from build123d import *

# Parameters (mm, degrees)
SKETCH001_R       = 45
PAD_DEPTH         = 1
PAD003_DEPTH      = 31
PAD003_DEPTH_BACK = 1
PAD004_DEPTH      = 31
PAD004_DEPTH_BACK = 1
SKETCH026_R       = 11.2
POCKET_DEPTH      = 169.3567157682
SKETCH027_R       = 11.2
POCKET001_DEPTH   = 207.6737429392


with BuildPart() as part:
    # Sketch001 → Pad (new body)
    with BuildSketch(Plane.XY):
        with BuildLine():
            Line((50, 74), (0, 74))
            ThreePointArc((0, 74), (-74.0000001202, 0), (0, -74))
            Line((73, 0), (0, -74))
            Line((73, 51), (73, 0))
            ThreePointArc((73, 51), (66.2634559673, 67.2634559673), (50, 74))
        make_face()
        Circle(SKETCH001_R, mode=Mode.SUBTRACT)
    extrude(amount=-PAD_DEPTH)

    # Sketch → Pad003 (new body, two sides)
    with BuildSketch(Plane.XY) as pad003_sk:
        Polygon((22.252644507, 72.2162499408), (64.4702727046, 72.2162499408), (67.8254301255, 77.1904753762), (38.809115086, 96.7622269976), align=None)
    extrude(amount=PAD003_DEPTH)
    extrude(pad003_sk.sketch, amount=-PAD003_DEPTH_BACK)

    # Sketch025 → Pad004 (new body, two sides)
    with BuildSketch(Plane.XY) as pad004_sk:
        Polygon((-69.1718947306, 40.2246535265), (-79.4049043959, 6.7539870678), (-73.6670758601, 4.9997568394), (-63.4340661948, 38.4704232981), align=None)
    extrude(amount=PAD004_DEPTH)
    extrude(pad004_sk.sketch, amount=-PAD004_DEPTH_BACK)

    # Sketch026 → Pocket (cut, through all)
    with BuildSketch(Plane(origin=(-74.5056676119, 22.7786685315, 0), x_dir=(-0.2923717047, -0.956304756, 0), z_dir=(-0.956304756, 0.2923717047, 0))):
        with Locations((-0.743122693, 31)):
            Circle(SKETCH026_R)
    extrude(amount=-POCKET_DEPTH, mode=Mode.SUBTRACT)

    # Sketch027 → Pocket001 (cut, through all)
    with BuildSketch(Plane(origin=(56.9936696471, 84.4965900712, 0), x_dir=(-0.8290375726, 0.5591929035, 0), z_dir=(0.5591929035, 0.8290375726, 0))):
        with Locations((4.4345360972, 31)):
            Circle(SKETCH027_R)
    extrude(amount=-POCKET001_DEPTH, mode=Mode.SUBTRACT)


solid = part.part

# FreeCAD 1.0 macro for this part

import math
import FreeCAD as App
import Part
import Sketcher

V = App.Vector
Q = App.Units.Quantity


def add_polygon(sketch, points):
    """Adds a closed chain of lines whose ends are joined by coincident constraints."""
    first, n = sketch.GeometryCount, len(points)
    for a, b in zip(points, points[1:] + points[:1]):
        sketch.addGeometry(Part.LineSegment(App.Vector(*a, 0), App.Vector(*b, 0)), False)
    for i in range(n):
        sketch.addConstraint(Sketcher.Constraint("Coincident", first + i, 2, first + (i + 1) % n, 1))

doc = App.newDocument("Part")
body = doc.addObject("PartDesign::Body", "Body")

sketch1 = doc.addObject("Sketcher::SketchObject", "Sketch")
body.addObject(sketch1)
sketch1.AttachmentSupport = (doc.XY_Plane, [""])
sketch1.MapMode = "FlatFace"
sketch1.addGeometry(Part.LineSegment(V(50, 74, 0), V(0, 74, 0)), False)
sketch1.addGeometry(Part.ArcOfCircle(Part.Circle(V(0, 0, 0), V(0, 0, 1), 74), math.radians(90), math.radians(270)), False)
sketch1.addGeometry(Part.LineSegment(V(0, -74, 0), V(73, 0, 0)), False)
sketch1.addGeometry(Part.LineSegment(V(73, 0, 0), V(73, 51, 0)), False)
sketch1.addGeometry(Part.ArcOfCircle(Part.Circle(V(50, 51, 0), V(0, 0, 1), 23), math.radians(0), math.radians(90)), False)
sketch1.addGeometry(Part.Circle(V(0, 0, 0), V(0, 0, 1), 45), False)
sketch1.addConstraint(Sketcher.Constraint("Tangent", 0, 2, 1, 1))
sketch1.addConstraint(Sketcher.Constraint("Coincident", 1, 2, 2, 1))
sketch1.addConstraint(Sketcher.Constraint("Coincident", 2, 2, 3, 1))
sketch1.addConstraint(Sketcher.Constraint("Tangent", 3, 2, 4, 1))
sketch1.addConstraint(Sketcher.Constraint("Tangent", 4, 2, 0, 1))
sketch1.addConstraint(Sketcher.Constraint("Horizontal", 0))
sketch1.addConstraint(Sketcher.Constraint("Vertical", 3))
sketch1.addConstraint(Sketcher.Constraint("Coincident", 1, 3, -1, 1))
sketch1.addConstraint(Sketcher.Constraint("Coincident", 5, 3, -1, 1))
sketch1.addConstraint(Sketcher.Constraint("PointOnObject", 1, 2, -2))
sketch1.addConstraint(Sketcher.Constraint("PointOnObject", 2, 2, -1))
sketch1.addConstraint(Sketcher.Constraint("Diameter", 5, 90.0))
sketch1.addConstraint(Sketcher.Constraint("Radius", 1, 74.0))
sketch1.addConstraint(Sketcher.Constraint("Radius", 4, 23.0))
sketch1.addConstraint(Sketcher.Constraint("DistanceX", 0, 2, 0, 1, 50.0))
pad1 = doc.addObject("PartDesign::Pad", "Pad")
body.addObject(pad1)
pad1.Profile = sketch1
pad1.Length = 1
pad1.Reversed = True

sketch2 = doc.addObject("Sketcher::SketchObject", "Sketch001")
body.addObject(sketch2)
sketch2.AttachmentSupport = (doc.XY_Plane, [""])
sketch2.MapMode = "FlatFace"
add_polygon(sketch2, [(22, 72), (64, 72), (68, 77), (39, 97)])
sketch2.addConstraint(Sketcher.Constraint("Horizontal", 0))
sketch2.addConstraint(Sketcher.Constraint("Perpendicular", 1, 2))
sketch2.addConstraint(Sketcher.Constraint("Perpendicular", 2, 3))
sketch2.addConstraint(Sketcher.Constraint("Angle", 1, Q("56 deg")))
sketch2.addConstraint(Sketcher.Constraint("Distance", 1, 6.0))
sketch2.addConstraint(Sketcher.Constraint("Distance", 2, 35.0))
sketch2.addConstraint(Sketcher.Constraint("DistanceY", -1, 1, 0, 2, 72.21625))
sketch2.addConstraint(Sketcher.Constraint("DistanceX", -1, 1, 1, 2, 67.82543))
pad2 = doc.addObject("PartDesign::Pad", "Pad001")
body.addObject(pad2)
pad2.Profile = sketch2
pad2.Type = "TwoLengths"
pad2.Length = 31
pad2.Length2 = 1

sketch3 = doc.addObject("Sketcher::SketchObject", "Sketch002")
body.addObject(sketch3)
sketch3.AttachmentSupport = (doc.XY_Plane, [""])
sketch3.MapMode = "FlatFace"
add_polygon(sketch3, [(-69, 40), (-79, 7), (-74, 5), (-63, 38)])
sketch3.addConstraint(Sketcher.Constraint("Perpendicular", 0, 1))
sketch3.addConstraint(Sketcher.Constraint("Perpendicular", 1, 2))
sketch3.addConstraint(Sketcher.Constraint("Perpendicular", 2, 3))
sketch3.addConstraint(Sketcher.Constraint("Angle", 0, Q("-107 deg")))
sketch3.addConstraint(Sketcher.Constraint("Distance", 0, 35.0))
sketch3.addConstraint(Sketcher.Constraint("Distance", 1, 6.0))
sketch3.addConstraint(Sketcher.Constraint("DistanceX", 0, 2, -1, 1, 79.404904))
sketch3.addConstraint(Sketcher.Constraint("DistanceY", -1, 1, 0, 2, 6.753987))
pad3 = doc.addObject("PartDesign::Pad", "Pad002")
body.addObject(pad3)
pad3.Profile = sketch3
pad3.Type = "TwoLengths"
pad3.Length = 31
pad3.Length2 = 1

sketch4 = doc.addObject("Sketcher::SketchObject", "Sketch003")
body.addObject(sketch4)
sketch4.Placement = App.Placement(V(-74.505668, 22.778669, 0), App.Rotation(V(-0.292371705, -0.956304756, 0), V(0, 0, 1), V(-0.956304756, 0.292371705, 0), "ZXY"))
sketch4.addGeometry(Part.Circle(V(-1, 31, 0), V(0, 0, 1), 11), False)
sketch4.addConstraint(Sketcher.Constraint("Diameter", 0, 22.4))
sketch4.addConstraint(Sketcher.Constraint("DistanceY", -1, 1, 0, 3, 31.0))
sketch4.addConstraint(Sketcher.Constraint("DistanceX", 0, 3, -1, 1, 0.743123))
pocket1 = doc.addObject("PartDesign::Pocket", "Pocket")
body.addObject(pocket1)
pocket1.Profile = sketch4
pocket1.Type = "ThroughAll"

sketch5 = doc.addObject("Sketcher::SketchObject", "Sketch004")
body.addObject(sketch5)
sketch5.Placement = App.Placement(V(56.99367, 84.49659, 0), App.Rotation(V(-0.829037573, 0.559192903, 0), V(0, 0, 1), V(0.559192903, 0.829037573, 0), "ZXY"))
sketch5.addGeometry(Part.Circle(V(4, 31, 0), V(0, 0, 1), 11), False)
sketch5.addConstraint(Sketcher.Constraint("Diameter", 0, 22.4))
sketch5.addConstraint(Sketcher.Constraint("DistanceY", -1, 1, 0, 3, 31.0))
sketch5.addConstraint(Sketcher.Constraint("DistanceX", -1, 1, 0, 3, 4.434536))
pocket2 = doc.addObject("PartDesign::Pocket", "Pocket001")
body.addObject(pocket2)
pocket2.Profile = sketch5
pocket2.Type = "ThroughAll"

doc.recompute()
